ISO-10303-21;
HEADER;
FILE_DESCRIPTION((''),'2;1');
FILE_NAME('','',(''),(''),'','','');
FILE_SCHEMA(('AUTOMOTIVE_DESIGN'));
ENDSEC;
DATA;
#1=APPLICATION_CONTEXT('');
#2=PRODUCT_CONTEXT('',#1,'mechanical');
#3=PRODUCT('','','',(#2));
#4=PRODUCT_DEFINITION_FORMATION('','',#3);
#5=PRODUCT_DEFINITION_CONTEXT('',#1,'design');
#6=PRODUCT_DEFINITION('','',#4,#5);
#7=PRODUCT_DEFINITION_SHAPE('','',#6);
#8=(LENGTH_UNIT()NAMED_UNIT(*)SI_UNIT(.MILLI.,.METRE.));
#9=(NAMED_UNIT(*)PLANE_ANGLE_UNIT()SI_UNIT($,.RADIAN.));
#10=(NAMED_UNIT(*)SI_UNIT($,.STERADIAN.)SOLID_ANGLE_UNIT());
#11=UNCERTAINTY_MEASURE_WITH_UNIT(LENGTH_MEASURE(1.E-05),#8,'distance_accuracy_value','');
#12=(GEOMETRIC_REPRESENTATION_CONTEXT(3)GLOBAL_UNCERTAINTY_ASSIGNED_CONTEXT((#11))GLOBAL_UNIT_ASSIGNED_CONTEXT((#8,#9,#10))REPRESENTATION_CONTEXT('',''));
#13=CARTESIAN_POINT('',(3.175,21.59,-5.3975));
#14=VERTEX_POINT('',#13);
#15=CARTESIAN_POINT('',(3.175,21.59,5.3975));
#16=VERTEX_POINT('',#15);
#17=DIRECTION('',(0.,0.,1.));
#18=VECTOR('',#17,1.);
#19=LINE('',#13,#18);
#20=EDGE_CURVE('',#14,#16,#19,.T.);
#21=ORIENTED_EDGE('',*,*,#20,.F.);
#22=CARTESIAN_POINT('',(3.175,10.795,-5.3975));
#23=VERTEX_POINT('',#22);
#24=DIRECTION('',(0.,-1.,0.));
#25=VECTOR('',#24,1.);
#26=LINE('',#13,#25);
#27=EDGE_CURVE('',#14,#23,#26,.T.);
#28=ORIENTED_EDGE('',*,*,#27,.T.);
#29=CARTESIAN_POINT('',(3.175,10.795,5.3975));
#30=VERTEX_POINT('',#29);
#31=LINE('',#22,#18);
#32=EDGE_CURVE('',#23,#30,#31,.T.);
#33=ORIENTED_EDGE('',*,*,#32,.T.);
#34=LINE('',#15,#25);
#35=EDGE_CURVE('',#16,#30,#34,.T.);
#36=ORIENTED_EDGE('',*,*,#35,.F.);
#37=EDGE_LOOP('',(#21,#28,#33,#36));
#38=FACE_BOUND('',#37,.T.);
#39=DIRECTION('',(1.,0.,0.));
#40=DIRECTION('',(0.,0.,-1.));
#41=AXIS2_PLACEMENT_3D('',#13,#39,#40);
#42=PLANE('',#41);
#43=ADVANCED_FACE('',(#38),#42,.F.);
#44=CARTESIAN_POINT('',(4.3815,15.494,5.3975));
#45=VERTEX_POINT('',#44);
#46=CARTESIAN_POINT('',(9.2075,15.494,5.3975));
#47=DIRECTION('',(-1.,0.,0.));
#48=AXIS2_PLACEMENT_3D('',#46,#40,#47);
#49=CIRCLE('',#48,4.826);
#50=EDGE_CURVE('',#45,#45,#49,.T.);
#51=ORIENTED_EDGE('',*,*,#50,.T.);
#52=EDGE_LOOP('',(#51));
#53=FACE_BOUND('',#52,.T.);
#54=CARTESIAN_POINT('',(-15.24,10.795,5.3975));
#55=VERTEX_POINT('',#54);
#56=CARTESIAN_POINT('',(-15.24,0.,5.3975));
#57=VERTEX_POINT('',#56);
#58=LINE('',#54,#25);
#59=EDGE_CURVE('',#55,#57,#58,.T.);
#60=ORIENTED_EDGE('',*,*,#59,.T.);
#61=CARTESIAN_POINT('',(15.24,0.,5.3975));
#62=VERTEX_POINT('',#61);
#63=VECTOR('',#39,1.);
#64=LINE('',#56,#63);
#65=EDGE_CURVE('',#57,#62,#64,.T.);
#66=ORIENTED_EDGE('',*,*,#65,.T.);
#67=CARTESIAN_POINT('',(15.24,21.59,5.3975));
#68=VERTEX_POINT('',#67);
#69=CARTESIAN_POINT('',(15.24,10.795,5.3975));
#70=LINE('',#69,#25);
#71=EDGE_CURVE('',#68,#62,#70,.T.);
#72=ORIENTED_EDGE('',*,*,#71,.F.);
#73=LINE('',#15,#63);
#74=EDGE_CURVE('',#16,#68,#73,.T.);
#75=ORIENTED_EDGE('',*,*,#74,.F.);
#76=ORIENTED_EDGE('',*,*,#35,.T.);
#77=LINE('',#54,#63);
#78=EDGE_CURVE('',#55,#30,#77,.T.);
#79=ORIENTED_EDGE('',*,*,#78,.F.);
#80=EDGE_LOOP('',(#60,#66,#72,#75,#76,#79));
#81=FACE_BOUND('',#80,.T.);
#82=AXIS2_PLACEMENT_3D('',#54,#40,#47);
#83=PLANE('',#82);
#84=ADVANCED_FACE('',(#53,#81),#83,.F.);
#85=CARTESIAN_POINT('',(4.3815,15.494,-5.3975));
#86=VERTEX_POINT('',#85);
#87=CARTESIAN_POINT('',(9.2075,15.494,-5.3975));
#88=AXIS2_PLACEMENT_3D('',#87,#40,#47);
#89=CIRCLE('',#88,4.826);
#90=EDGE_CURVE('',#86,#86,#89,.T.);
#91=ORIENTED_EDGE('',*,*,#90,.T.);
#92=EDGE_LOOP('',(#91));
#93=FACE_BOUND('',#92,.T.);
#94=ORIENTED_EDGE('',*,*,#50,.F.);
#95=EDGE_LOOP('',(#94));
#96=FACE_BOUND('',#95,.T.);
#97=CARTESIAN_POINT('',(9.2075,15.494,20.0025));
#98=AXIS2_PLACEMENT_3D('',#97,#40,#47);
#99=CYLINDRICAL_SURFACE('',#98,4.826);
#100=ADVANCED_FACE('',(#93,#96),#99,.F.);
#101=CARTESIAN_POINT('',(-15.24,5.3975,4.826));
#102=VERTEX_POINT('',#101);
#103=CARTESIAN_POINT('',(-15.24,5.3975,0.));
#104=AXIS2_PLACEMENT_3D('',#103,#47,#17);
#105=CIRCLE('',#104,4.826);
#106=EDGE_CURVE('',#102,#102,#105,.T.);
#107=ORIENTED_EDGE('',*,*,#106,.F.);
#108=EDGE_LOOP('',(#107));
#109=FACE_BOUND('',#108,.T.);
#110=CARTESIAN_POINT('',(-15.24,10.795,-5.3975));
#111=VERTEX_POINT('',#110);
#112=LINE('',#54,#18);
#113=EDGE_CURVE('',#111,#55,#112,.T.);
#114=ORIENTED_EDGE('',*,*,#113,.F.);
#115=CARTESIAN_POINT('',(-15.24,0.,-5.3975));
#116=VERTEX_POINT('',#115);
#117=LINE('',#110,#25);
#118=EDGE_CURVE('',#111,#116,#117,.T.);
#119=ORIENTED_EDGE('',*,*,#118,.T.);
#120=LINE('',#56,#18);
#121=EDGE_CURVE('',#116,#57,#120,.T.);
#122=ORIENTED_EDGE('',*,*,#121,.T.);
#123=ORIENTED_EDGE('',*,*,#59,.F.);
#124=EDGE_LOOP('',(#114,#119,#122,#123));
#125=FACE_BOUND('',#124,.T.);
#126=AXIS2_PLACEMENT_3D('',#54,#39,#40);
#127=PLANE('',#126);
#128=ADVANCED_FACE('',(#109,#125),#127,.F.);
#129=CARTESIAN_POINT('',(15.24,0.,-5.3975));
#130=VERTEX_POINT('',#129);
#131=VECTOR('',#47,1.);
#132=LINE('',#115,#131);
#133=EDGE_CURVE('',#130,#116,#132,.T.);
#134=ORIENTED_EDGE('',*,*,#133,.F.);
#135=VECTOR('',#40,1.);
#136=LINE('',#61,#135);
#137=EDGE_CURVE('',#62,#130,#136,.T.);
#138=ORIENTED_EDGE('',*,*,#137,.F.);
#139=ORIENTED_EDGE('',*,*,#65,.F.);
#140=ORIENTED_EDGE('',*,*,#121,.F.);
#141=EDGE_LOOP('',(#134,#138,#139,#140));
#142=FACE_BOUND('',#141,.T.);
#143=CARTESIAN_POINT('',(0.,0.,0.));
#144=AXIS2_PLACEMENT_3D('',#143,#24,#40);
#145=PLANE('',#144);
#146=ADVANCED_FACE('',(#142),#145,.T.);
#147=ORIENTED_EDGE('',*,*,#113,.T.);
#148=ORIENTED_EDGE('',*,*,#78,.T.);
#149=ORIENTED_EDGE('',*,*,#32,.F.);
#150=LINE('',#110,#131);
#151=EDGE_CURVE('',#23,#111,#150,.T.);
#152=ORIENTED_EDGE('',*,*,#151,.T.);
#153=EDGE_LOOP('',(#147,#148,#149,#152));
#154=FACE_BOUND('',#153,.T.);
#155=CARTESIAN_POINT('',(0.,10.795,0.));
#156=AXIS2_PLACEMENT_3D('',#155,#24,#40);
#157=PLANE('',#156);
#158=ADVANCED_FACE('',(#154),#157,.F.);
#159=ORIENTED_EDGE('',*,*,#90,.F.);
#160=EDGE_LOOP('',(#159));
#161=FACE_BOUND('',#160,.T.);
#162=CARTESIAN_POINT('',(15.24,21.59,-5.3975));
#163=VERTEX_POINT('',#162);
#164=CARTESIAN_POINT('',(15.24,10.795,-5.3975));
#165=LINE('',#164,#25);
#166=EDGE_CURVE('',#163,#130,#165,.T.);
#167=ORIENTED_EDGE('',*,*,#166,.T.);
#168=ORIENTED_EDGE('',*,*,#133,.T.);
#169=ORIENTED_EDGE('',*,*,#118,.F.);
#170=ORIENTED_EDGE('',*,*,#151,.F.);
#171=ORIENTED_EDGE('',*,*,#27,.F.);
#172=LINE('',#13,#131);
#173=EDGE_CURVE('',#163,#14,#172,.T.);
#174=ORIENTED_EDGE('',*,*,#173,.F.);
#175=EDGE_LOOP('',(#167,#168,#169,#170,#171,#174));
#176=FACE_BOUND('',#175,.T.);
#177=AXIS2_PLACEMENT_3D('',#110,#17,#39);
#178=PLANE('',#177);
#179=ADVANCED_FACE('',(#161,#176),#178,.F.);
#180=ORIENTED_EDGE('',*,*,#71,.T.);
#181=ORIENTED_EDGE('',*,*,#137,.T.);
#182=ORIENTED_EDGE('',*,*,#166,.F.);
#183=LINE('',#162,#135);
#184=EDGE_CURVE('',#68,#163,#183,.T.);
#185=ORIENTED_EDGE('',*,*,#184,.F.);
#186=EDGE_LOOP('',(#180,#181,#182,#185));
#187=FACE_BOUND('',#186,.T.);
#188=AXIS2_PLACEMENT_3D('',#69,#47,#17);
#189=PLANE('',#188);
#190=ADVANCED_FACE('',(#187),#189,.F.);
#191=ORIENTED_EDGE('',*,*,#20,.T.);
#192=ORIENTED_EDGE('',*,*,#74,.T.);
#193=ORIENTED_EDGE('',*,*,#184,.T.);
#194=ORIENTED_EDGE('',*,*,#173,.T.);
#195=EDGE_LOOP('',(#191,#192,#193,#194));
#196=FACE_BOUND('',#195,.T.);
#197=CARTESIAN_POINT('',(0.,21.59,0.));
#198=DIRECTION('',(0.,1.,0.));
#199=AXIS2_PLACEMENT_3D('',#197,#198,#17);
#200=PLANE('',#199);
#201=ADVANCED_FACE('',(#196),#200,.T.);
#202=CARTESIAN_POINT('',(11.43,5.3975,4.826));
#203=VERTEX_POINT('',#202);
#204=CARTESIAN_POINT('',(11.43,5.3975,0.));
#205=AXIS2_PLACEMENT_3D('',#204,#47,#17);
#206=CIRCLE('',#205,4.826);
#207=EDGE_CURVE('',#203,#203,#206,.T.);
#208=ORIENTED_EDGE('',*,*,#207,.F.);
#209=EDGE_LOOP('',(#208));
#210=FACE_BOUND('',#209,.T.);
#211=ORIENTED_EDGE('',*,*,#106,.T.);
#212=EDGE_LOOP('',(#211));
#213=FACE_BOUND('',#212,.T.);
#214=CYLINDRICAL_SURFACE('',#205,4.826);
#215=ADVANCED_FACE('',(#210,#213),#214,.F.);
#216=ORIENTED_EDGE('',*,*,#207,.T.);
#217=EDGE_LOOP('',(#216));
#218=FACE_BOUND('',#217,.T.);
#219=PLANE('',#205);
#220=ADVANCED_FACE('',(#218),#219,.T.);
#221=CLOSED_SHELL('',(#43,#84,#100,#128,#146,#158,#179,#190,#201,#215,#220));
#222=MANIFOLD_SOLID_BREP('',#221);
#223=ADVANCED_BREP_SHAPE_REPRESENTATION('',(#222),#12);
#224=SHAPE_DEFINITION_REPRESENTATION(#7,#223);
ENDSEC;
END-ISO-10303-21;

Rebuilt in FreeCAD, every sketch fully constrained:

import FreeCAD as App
import Part
import Sketcher
from FreeCAD import Vector
Q = App.Units.Quantity

doc = App.newDocument("Part")
body = doc.addObject("PartDesign::Body", "Body")

sketch1 = body.newObject("Sketcher::SketchObject", "Sketch")
sketch1.AttachmentSupport = (doc.getObject("XZ_Plane"), [""])
sketch1.MapMode = "FlatFace"
sketch1.addGeometry([
    Part.LineSegment(Vector(-15, -5, 0), Vector(-15, 5, 0)),
    Part.LineSegment(Vector(-15, 5, 0), Vector(15, 5, 0)),
    Part.LineSegment(Vector(15, 5, 0), Vector(15, -5, 0)),
    Part.LineSegment(Vector(15, -5, 0), Vector(-15, -5, 0)),
], False)
sketch1.addConstraint([
    Sketcher.Constraint("Coincident", 0, 2, 1, 1),
    Sketcher.Constraint("Coincident", 1, 2, 2, 1),
    Sketcher.Constraint("Coincident", 2, 2, 3, 1),
    Sketcher.Constraint("Coincident", 3, 2, 0, 1),
    Sketcher.Constraint("Vertical", 0),
    Sketcher.Constraint("Horizontal", 1),
    Sketcher.Constraint("Vertical", 2),
    Sketcher.Constraint("Horizontal", 3),
    Sketcher.Constraint("Symmetric", 0, 2, 2, 2, -1, 1),
    Sketcher.Constraint("DistanceX", 1, 1, 1, 2, Q("1.2 in")),
    Sketcher.Constraint("DistanceY", 0, 1, 0, 2, Q("0.425 in")),
])
pad1 = body.newObject("PartDesign::Pad", "Pad")
pad1.Profile = sketch1
pad1.Length = Q("0.425 in")
pad1.Reversed = True

sketch2 = body.newObject("Sketcher::SketchObject", "Sketch001")
sketch2.AttachmentSupport = (doc.getObject("YZ_Plane"), [""])
sketch2.MapMode = "FlatFace"
sketch2.AttachmentOffset = App.Placement(Vector(0, 0, -0.6 * 25.4), App.Rotation())
sketch2.addGeometry(Part.Circle(Vector(5.4, 0, 0), Vector(0, 0, 1), 4.8), False)
sketch2.addConstraint([
    Sketcher.Constraint("PointOnObject", 0, 3, -1),
    Sketcher.Constraint("Diameter", 0, Q("0.38 in")),
    Sketcher.Constraint("DistanceX", -1, 1, 0, 3, Q("0.2125 in")),
])
pocket1 = body.newObject("PartDesign::Pocket", "Pocket")
pocket1.Profile = sketch2
pocket1.Length = Q("1.05 in")
pocket1.Reversed = True

sketch3 = body.newObject("Sketcher::SketchObject", "Sketch002")
sketch3.AttachmentSupport = (doc.getObject("XZ_Plane"), [""])
sketch3.MapMode = "FlatFace"
sketch3.AttachmentOffset = App.Placement(Vector(0, 0, -0.425 * 25.4), App.Rotation())
sketch3.addGeometry([
    Part.LineSegment(Vector(3, -5, 0), Vector(3, 5, 0)),
    Part.LineSegment(Vector(3, 5, 0), Vector(15, 5, 0)),
    Part.LineSegment(Vector(15, 5, 0), Vector(15, -5, 0)),
    Part.LineSegment(Vector(15, -5, 0), Vector(3, -5, 0)),
], False)
sketch3.addConstraint([
    Sketcher.Constraint("Coincident", 0, 2, 1, 1),
    Sketcher.Constraint("Coincident", 1, 2, 2, 1),
    Sketcher.Constraint("Coincident", 2, 2, 3, 1),
    Sketcher.Constraint("Coincident", 3, 2, 0, 1),
    Sketcher.Constraint("Vertical", 0),
    Sketcher.Constraint("Horizontal", 1),
    Sketcher.Constraint("Vertical", 2),
    Sketcher.Constraint("Horizontal", 3),
    Sketcher.Constraint("DistanceX", -1, 1, 1, 2, Q("0.6 in")),
    Sketcher.Constraint("DistanceX", 1, 1, 1, 2, Q("0.475 in")),
    Sketcher.Constraint("DistanceY", 0, 1, 0, 2, Q("0.425 in")),
    Sketcher.Constraint("DistanceY", -1, 1, 0, 2, Q("0.2125 in")),
])
pad2 = body.newObject("PartDesign::Pad", "Pad001")
pad2.Profile = sketch3
pad2.Length = Q("0.425 in")
pad2.Reversed = True

sketch4 = body.newObject("Sketcher::SketchObject", "Sketch003")
sketch4.AttachmentSupport = (doc.getObject("XY_Plane"), [""])
sketch4.MapMode = "FlatFace"
sketch4.AttachmentOffset = App.Placement(Vector(0, 0, -0.2125 * 25.4), App.Rotation())
sketch4.addGeometry(Part.Circle(Vector(9.2, 15.5, 0), Vector(0, 0, 1), 4.8), False)
sketch4.addConstraint([
    Sketcher.Constraint("Diameter", 0, Q("0.38 in")),
    Sketcher.Constraint("DistanceY", -1, 1, 0, 3, Q("0.61 in")),
    Sketcher.Constraint("DistanceX", -1, 1, 0, 3, Q("0.3625 in")),
])
pocket2 = body.newObject("PartDesign::Pocket", "Pocket001")
pocket2.Profile = sketch4
pocket2.Length = Q("1 in")
pocket2.Reversed = True

doc.recompute()
